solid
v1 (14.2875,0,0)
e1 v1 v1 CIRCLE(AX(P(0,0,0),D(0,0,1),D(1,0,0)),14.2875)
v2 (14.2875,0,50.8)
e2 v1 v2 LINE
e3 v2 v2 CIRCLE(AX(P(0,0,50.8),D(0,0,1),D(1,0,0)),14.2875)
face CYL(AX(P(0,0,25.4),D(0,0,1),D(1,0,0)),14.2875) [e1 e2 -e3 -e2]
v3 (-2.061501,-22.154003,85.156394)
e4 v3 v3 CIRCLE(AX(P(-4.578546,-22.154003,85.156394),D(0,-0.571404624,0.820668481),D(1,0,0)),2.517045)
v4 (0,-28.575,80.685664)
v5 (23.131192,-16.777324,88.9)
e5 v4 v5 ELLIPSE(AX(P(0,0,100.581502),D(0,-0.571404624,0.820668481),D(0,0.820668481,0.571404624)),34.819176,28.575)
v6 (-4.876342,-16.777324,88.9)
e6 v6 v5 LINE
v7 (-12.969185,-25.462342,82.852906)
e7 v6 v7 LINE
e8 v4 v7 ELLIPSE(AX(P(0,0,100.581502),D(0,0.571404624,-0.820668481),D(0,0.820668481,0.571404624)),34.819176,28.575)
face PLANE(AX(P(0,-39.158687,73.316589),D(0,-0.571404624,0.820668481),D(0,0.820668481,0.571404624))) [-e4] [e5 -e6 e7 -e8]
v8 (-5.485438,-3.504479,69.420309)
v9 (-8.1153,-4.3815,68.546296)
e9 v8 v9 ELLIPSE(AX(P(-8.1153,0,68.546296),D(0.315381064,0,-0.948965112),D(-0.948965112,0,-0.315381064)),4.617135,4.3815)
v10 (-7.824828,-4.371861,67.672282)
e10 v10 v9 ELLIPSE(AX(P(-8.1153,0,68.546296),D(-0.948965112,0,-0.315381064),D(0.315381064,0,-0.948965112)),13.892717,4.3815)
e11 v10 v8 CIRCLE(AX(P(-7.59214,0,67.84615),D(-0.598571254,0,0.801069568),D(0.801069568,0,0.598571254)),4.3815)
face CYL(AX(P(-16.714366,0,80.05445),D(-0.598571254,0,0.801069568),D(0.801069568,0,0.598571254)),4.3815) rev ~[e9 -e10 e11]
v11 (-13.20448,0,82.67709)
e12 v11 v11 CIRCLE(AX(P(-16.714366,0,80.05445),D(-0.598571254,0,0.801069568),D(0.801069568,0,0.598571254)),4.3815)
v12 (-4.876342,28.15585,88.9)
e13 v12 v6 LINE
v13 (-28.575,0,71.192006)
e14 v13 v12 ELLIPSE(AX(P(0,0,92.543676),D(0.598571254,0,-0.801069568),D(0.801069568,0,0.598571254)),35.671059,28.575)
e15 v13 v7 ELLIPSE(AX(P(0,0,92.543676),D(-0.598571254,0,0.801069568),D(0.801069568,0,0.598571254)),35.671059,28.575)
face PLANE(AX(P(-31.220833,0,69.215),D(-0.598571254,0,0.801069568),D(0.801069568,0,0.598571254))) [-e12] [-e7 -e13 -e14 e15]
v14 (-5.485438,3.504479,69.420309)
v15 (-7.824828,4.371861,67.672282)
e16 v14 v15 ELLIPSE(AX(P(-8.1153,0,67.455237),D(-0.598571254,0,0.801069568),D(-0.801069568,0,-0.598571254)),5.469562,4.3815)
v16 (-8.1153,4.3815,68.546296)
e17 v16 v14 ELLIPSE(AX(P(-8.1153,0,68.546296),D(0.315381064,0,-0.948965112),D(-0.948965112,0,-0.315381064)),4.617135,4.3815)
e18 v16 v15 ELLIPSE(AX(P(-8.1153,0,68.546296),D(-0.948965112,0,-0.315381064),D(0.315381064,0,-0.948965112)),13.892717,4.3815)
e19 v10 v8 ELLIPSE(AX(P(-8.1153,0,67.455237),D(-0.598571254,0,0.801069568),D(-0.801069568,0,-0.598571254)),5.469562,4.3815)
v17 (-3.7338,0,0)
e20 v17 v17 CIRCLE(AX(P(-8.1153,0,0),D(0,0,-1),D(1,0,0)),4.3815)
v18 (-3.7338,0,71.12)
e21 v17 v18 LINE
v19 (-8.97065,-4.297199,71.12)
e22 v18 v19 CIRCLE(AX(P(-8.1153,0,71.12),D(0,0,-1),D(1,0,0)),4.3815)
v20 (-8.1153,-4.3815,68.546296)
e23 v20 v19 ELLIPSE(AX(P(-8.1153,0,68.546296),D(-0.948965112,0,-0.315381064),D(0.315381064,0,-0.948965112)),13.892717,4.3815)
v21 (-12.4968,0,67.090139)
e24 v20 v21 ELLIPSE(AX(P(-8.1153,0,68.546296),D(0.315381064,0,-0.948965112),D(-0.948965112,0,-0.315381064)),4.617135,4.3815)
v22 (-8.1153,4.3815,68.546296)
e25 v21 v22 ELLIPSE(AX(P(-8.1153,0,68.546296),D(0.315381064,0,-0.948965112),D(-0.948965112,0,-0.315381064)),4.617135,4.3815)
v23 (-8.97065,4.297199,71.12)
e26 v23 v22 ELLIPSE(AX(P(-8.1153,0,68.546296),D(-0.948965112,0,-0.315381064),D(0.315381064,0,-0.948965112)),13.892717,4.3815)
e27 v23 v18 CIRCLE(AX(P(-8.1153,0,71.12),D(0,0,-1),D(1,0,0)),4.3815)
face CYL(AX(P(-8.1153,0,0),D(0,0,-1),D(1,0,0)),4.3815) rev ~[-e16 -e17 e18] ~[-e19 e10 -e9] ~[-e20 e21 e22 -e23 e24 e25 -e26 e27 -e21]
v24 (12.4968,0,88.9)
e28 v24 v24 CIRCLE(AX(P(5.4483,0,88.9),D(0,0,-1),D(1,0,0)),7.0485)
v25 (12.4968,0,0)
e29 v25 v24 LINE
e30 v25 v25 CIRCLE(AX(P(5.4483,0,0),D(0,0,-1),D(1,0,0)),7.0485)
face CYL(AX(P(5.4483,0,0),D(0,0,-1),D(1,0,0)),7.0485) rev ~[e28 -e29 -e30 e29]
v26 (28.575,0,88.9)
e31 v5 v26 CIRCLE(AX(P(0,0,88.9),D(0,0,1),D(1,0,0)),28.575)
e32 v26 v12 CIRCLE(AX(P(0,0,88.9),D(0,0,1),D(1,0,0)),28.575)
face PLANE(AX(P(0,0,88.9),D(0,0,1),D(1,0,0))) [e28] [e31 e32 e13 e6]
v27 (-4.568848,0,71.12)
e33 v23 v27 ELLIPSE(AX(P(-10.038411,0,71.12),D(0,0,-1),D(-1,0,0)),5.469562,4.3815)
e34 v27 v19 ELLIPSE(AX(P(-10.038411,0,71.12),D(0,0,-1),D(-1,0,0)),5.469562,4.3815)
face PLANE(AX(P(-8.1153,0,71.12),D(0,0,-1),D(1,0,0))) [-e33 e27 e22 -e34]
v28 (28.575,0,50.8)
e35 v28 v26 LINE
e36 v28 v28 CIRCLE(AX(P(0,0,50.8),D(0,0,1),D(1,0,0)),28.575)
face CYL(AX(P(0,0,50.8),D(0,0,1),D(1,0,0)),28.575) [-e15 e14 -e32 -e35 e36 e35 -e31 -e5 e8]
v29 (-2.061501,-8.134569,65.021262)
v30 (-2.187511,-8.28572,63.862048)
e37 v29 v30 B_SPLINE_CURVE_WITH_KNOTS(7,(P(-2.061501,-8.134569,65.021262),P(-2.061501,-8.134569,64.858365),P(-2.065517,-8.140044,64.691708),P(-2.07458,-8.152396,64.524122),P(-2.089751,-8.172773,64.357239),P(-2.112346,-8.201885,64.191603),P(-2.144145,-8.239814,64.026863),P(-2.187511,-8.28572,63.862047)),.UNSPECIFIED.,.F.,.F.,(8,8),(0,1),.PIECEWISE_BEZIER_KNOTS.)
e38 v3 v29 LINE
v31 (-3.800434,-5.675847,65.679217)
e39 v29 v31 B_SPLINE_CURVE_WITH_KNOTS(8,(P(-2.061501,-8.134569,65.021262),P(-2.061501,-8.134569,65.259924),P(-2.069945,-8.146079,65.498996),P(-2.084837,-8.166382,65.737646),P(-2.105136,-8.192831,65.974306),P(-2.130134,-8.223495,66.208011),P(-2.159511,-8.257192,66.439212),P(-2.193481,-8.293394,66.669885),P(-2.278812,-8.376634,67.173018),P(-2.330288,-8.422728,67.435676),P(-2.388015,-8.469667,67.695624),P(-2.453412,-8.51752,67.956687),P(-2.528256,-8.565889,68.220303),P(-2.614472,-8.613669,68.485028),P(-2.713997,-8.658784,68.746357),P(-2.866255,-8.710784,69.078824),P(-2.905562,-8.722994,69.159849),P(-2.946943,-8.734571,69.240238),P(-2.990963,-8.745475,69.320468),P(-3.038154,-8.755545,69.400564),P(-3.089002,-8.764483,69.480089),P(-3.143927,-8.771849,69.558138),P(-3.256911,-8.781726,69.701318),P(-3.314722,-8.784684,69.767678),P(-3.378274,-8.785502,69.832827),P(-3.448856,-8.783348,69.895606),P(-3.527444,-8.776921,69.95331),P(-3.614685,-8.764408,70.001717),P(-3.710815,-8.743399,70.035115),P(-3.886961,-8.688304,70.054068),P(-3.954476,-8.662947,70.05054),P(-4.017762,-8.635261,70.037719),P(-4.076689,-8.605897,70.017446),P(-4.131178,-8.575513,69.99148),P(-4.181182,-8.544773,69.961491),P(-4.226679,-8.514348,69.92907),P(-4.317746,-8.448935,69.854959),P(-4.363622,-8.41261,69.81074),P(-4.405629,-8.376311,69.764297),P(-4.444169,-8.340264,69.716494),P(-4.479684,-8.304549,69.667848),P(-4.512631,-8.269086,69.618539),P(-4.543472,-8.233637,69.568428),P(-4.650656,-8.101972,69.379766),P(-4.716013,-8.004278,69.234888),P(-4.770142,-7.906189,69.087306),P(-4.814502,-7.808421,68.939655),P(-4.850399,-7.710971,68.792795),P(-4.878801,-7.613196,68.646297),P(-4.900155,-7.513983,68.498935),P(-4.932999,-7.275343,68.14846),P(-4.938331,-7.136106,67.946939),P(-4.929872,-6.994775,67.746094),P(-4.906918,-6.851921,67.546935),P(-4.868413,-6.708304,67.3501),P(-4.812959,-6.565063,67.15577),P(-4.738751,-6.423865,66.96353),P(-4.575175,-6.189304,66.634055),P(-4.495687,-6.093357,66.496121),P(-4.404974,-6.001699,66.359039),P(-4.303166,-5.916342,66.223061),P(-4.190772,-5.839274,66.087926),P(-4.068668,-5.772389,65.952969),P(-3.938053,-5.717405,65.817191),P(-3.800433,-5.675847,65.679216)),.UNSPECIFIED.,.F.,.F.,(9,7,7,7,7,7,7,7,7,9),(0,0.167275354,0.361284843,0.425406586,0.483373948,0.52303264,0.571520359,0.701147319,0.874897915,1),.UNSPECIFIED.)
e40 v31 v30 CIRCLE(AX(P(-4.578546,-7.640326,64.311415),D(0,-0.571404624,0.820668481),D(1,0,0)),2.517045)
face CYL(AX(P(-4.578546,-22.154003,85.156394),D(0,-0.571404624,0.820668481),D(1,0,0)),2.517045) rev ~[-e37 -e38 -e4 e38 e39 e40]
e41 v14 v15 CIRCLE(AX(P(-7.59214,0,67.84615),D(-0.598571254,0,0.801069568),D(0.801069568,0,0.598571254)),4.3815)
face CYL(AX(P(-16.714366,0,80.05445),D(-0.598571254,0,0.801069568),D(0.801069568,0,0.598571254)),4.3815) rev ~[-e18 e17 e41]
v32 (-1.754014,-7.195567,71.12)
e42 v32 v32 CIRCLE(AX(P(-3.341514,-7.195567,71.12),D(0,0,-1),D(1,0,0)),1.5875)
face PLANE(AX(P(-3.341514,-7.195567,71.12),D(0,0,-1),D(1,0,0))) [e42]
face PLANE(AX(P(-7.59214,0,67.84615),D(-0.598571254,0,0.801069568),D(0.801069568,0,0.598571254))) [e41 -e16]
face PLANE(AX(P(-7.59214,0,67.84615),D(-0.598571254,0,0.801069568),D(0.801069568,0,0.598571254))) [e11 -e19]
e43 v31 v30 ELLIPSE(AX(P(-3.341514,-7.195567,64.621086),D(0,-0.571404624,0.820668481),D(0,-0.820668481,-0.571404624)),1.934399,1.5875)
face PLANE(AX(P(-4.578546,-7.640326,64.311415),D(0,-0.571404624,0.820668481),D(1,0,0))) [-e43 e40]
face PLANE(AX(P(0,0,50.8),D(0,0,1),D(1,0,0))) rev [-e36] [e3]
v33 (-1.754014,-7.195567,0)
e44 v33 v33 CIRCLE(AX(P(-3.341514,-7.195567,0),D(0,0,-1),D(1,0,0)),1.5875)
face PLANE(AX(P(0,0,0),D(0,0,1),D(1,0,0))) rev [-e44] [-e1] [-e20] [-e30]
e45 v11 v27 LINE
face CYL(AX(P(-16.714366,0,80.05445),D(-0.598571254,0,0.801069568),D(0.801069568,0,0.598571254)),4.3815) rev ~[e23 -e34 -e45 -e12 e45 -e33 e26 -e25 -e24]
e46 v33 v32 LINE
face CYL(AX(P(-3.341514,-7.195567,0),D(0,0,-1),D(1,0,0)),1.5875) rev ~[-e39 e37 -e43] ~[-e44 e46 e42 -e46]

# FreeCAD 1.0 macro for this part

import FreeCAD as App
import Part
import Sketcher
from FreeCAD import Vector
Q = App.Units.Quantity

doc = App.newDocument("Part")
body = doc.addObject("PartDesign::Body", "Body")

# Sketch on XZ plane
sketch1 = body.newObject("Sketcher::SketchObject", "Sketch")
sketch1.AttachmentSupport = (doc.getObject("XZ_Plane"), [""])
sketch1.MapMode = "FlatFace"
sketch1.addGeometry([
    Part.LineSegment(Vector(0, 89, 0), Vector(0, 0, 0)),  # 0
    Part.LineSegment(Vector(0, 0, 0), Vector(14, 0, 0)),  # 1
    Part.LineSegment(Vector(14, 0, 0), Vector(14, 51, 0)),  # 2
    Part.LineSegment(Vector(14, 51, 0), Vector(29, 51, 0)),  # 3
    Part.LineSegment(Vector(29, 51, 0), Vector(29, 89, 0)),  # 4
    Part.LineSegment(Vector(29, 89, 0), Vector(0, 89, 0)),  # 5
], False)
sketch1.addConstraint([
    Sketcher.Constraint("Coincident", 0, 2, 1, 1),
    Sketcher.Constraint("Coincident", 1, 2, 2, 1),
    Sketcher.Constraint("Coincident", 2, 2, 3, 1),
    Sketcher.Constraint("Coincident", 3, 2, 4, 1),
    Sketcher.Constraint("Coincident", 4, 2, 5, 1),
    Sketcher.Constraint("Coincident", 5, 2, 0, 1),
    Sketcher.Constraint("Vertical", 0),
    Sketcher.Constraint("Horizontal", 1),
    Sketcher.Constraint("Vertical", 2),
    Sketcher.Constraint("Horizontal", 3),
    Sketcher.Constraint("Vertical", 4),
    Sketcher.Constraint("Horizontal", 5),
    Sketcher.Constraint("Coincident", 0, 2, -1, 1),
    Sketcher.Constraint("Equal", 1, 3),
    Sketcher.Constraint("DistanceY", 2, 1, 2, 2, Q("2 in")),
    Sketcher.Constraint("DistanceY", 0, 2, 0, 1, Q("3.5 in")),
    Sketcher.Constraint("DistanceX", 1, 1, 1, 2, Q("0.5625 in")),
])
revolution = body.newObject("PartDesign::Revolution", "Revolution")
revolution.Profile = sketch1
revolution.ReferenceAxis = (sketch1, ["V_Axis"])
revolution.Angle = 360

# Sketch on XY plane
sketch2 = body.newObject("Sketcher::SketchObject", "Sketch001")
sketch2.AttachmentSupport = (doc.getObject("XY_Plane"), [""])
sketch2.MapMode = "FlatFace"
sketch2.addGeometry(Part.Circle(Vector(5, 0, 0), Vector(0, 0, 1), 7), False)
sketch2.addConstraint([
    Sketcher.Constraint("PointOnObject", 0, 3, -1),
    Sketcher.Constraint("Diameter", 0, Q("0.555 in")),
    Sketcher.Constraint("DistanceX", -1, 1, 0, 3, Q("0.2145 in")),
])
pocket1 = body.newObject("PartDesign::Pocket", "Pocket")
pocket1.Profile = sketch2
pocket1.Type = "ThroughAll"
pocket1.Reversed = True

# Sketch on XY plane
sketch3 = body.newObject("Sketcher::SketchObject", "Sketch002")
sketch3.AttachmentSupport = (doc.getObject("XY_Plane"), [""])
sketch3.MapMode = "FlatFace"
sketch3.addGeometry([
    Part.Circle(Vector(-8.1, 0, 0), Vector(0, 0, 1), 4.4),
    Part.Circle(Vector(-3.3, -7.2, 0), Vector(0, 0, 1), 1.6),
], False)
sketch3.addConstraint([
    Sketcher.Constraint("PointOnObject", 0, 3, -1),
    Sketcher.Constraint("Diameter", 0, Q("0.345 in")),
    Sketcher.Constraint("Diameter", 1, Q("0.125 in")),
    Sketcher.Constraint("DistanceX", 0, 3, -1, 1, Q("0.3195 in")),
    Sketcher.Constraint("DistanceX", 1, 3, -1, 1, Q("3.341514 mm")),
    Sketcher.Constraint("DistanceY", 1, 3, -1, 1, Q("7.195567 mm")),
])
pocket2 = body.newObject("PartDesign::Pocket", "Pocket001")
pocket2.Profile = sketch3
pocket2.Length = Q("2.8 in")
pocket2.Reversed = True

# Sketch on XZ plane
sketch4 = body.newObject("Sketcher::SketchObject", "Sketch003")
sketch4.AttachmentSupport = (doc.getObject("XZ_Plane"), [""])
sketch4.MapMode = "FlatFace"
sketch4.addGeometry([
    Part.LineSegment(Vector(-31, 69, 0), Vector(0, 93, 0)),
    Part.LineSegment(Vector(0, 93, 0), Vector(-31, 92, 0)),
    Part.LineSegment(Vector(-31, 92, 0), Vector(-31, 69, 0)),
], False)
sketch4.addConstraint([
    Sketcher.Constraint("Coincident", 0, 2, 1, 1),
    Sketcher.Constraint("Coincident", 1, 2, 2, 1),
    Sketcher.Constraint("Coincident", 2, 2, 0, 1),
    Sketcher.Constraint("Vertical", 2),
    Sketcher.Constraint("PointOnObject", 0, 2, -2),
    Sketcher.Constraint("DistanceY", -1, 1, 2, 2, Q("2.725 in")),
    Sketcher.Constraint("DistanceY", 2, 2, 2, 1, Q("23.28334 mm")),
    Sketcher.Constraint("Distance", 0, Q("38.973934 mm")),
    Sketcher.Constraint("Distance", 1, Q("31.220866 mm")),
])
pocket3 = body.newObject("PartDesign::Pocket", "Pocket002")
pocket3.Profile = sketch4
pocket3.Type = "ThroughAll"
pocket3.Midplane = True

# Sketch on an angled plane
sketch5 = body.newObject("Sketcher::SketchObject", "Sketch004")
sketch5.Placement = App.Placement(Vector(-44.374435, 0, 59.38643), App.Rotation(Vector(0.801069568, 0, 0.598571254), Vector(0, 0.999999999, 0), Vector(-0.598571254, 0, 0.801069568), "ZXY"))
sketch5.addGeometry(Part.Circle(Vector(34.5, 0, 0), Vector(0, 0, 1), 4.4), False)
sketch5.addConstraint([
    Sketcher.Constraint("PointOnObject", 0, 3, -1),
    Sketcher.Constraint("Diameter", 0, Q("0.345 in")),
    Sketcher.Constraint("DistanceX", -1, 1, 0, 3, Q("34.528922 mm")),
])
pocket4 = body.newObject("PartDesign::Pocket", "Pocket003")
pocket4.Profile = sketch5
pocket4.Length = Q("0.6 in")

# Sketch on YZ plane
sketch6 = body.newObject("Sketcher::SketchObject", "Sketch005")
sketch6.AttachmentSupport = (doc.getObject("YZ_Plane"), [""])
sketch6.MapMode = "FlatFace"
sketch6.addGeometry([
    Part.LineSegment(Vector(-39, 73, 0), Vector(-11, 93, 0)),
    Part.LineSegment(Vector(-11, 93, 0), Vector(-39, 98, 0)),
    Part.LineSegment(Vector(-39, 98, 0), Vector(-39, 73, 0)),
], False)
sketch6.addConstraint([
    Sketcher.Constraint("Coincident", 0, 2, 1, 1),
    Sketcher.Constraint("Coincident", 1, 2, 2, 1),
    Sketcher.Constraint("Coincident", 2, 2, 0, 1),
    Sketcher.Constraint("Vertical", 2),
    Sketcher.Constraint("DistanceX", 0, 2, -1, 1, Q("0.4429 in")),
    Sketcher.Constraint("Distance", 1, Q("28.365911 mm")),
    Sketcher.Constraint("DistanceY", 2, 2, 2, 1, Q("24.502757 mm")),
    Sketcher.Constraint("DistanceY", -1, 1, 0, 2, Q("92.748731 mm")),
    Sketcher.Constraint("DistanceY", -1, 1, 2, 2, Q("73.316589 mm")),
])
pocket5 = body.newObject("PartDesign::Pocket", "Pocket004")
pocket5.Profile = sketch6
pocket5.Type = "ThroughAll"
pocket5.Midplane = True

# Sketch on an angled plane
sketch7 = body.newObject("Sketcher::SketchObject", "Sketch006")
sketch7.Placement = App.Placement(Vector(0, -47.166062, 67.741315), App.Rotation(Vector(1, 0, 0), Vector(0, 0.820668481, 0.571404624), Vector(0, -0.571404624, 0.820668481), "ZXY"))
sketch7.addGeometry(Part.Circle(Vector(-4.6, 30.5, 0), Vector(0, 0, 1), 2.5), False)
sketch7.addConstraint([
    Sketcher.Constraint("Diameter", 0, Q("5.03409 mm")),
    Sketcher.Constraint("DistanceX", 0, 3, -1, 1, Q("4.578546 mm")),
    Sketcher.Constraint("DistanceY", -1, 1, 0, 3, Q("30.477665 mm")),
])
pocket6 = body.newObject("PartDesign::Pocket", "Pocket005")
pocket6.Profile = sketch7
pocket6.Length = Q("1 in")

doc.recompute()
